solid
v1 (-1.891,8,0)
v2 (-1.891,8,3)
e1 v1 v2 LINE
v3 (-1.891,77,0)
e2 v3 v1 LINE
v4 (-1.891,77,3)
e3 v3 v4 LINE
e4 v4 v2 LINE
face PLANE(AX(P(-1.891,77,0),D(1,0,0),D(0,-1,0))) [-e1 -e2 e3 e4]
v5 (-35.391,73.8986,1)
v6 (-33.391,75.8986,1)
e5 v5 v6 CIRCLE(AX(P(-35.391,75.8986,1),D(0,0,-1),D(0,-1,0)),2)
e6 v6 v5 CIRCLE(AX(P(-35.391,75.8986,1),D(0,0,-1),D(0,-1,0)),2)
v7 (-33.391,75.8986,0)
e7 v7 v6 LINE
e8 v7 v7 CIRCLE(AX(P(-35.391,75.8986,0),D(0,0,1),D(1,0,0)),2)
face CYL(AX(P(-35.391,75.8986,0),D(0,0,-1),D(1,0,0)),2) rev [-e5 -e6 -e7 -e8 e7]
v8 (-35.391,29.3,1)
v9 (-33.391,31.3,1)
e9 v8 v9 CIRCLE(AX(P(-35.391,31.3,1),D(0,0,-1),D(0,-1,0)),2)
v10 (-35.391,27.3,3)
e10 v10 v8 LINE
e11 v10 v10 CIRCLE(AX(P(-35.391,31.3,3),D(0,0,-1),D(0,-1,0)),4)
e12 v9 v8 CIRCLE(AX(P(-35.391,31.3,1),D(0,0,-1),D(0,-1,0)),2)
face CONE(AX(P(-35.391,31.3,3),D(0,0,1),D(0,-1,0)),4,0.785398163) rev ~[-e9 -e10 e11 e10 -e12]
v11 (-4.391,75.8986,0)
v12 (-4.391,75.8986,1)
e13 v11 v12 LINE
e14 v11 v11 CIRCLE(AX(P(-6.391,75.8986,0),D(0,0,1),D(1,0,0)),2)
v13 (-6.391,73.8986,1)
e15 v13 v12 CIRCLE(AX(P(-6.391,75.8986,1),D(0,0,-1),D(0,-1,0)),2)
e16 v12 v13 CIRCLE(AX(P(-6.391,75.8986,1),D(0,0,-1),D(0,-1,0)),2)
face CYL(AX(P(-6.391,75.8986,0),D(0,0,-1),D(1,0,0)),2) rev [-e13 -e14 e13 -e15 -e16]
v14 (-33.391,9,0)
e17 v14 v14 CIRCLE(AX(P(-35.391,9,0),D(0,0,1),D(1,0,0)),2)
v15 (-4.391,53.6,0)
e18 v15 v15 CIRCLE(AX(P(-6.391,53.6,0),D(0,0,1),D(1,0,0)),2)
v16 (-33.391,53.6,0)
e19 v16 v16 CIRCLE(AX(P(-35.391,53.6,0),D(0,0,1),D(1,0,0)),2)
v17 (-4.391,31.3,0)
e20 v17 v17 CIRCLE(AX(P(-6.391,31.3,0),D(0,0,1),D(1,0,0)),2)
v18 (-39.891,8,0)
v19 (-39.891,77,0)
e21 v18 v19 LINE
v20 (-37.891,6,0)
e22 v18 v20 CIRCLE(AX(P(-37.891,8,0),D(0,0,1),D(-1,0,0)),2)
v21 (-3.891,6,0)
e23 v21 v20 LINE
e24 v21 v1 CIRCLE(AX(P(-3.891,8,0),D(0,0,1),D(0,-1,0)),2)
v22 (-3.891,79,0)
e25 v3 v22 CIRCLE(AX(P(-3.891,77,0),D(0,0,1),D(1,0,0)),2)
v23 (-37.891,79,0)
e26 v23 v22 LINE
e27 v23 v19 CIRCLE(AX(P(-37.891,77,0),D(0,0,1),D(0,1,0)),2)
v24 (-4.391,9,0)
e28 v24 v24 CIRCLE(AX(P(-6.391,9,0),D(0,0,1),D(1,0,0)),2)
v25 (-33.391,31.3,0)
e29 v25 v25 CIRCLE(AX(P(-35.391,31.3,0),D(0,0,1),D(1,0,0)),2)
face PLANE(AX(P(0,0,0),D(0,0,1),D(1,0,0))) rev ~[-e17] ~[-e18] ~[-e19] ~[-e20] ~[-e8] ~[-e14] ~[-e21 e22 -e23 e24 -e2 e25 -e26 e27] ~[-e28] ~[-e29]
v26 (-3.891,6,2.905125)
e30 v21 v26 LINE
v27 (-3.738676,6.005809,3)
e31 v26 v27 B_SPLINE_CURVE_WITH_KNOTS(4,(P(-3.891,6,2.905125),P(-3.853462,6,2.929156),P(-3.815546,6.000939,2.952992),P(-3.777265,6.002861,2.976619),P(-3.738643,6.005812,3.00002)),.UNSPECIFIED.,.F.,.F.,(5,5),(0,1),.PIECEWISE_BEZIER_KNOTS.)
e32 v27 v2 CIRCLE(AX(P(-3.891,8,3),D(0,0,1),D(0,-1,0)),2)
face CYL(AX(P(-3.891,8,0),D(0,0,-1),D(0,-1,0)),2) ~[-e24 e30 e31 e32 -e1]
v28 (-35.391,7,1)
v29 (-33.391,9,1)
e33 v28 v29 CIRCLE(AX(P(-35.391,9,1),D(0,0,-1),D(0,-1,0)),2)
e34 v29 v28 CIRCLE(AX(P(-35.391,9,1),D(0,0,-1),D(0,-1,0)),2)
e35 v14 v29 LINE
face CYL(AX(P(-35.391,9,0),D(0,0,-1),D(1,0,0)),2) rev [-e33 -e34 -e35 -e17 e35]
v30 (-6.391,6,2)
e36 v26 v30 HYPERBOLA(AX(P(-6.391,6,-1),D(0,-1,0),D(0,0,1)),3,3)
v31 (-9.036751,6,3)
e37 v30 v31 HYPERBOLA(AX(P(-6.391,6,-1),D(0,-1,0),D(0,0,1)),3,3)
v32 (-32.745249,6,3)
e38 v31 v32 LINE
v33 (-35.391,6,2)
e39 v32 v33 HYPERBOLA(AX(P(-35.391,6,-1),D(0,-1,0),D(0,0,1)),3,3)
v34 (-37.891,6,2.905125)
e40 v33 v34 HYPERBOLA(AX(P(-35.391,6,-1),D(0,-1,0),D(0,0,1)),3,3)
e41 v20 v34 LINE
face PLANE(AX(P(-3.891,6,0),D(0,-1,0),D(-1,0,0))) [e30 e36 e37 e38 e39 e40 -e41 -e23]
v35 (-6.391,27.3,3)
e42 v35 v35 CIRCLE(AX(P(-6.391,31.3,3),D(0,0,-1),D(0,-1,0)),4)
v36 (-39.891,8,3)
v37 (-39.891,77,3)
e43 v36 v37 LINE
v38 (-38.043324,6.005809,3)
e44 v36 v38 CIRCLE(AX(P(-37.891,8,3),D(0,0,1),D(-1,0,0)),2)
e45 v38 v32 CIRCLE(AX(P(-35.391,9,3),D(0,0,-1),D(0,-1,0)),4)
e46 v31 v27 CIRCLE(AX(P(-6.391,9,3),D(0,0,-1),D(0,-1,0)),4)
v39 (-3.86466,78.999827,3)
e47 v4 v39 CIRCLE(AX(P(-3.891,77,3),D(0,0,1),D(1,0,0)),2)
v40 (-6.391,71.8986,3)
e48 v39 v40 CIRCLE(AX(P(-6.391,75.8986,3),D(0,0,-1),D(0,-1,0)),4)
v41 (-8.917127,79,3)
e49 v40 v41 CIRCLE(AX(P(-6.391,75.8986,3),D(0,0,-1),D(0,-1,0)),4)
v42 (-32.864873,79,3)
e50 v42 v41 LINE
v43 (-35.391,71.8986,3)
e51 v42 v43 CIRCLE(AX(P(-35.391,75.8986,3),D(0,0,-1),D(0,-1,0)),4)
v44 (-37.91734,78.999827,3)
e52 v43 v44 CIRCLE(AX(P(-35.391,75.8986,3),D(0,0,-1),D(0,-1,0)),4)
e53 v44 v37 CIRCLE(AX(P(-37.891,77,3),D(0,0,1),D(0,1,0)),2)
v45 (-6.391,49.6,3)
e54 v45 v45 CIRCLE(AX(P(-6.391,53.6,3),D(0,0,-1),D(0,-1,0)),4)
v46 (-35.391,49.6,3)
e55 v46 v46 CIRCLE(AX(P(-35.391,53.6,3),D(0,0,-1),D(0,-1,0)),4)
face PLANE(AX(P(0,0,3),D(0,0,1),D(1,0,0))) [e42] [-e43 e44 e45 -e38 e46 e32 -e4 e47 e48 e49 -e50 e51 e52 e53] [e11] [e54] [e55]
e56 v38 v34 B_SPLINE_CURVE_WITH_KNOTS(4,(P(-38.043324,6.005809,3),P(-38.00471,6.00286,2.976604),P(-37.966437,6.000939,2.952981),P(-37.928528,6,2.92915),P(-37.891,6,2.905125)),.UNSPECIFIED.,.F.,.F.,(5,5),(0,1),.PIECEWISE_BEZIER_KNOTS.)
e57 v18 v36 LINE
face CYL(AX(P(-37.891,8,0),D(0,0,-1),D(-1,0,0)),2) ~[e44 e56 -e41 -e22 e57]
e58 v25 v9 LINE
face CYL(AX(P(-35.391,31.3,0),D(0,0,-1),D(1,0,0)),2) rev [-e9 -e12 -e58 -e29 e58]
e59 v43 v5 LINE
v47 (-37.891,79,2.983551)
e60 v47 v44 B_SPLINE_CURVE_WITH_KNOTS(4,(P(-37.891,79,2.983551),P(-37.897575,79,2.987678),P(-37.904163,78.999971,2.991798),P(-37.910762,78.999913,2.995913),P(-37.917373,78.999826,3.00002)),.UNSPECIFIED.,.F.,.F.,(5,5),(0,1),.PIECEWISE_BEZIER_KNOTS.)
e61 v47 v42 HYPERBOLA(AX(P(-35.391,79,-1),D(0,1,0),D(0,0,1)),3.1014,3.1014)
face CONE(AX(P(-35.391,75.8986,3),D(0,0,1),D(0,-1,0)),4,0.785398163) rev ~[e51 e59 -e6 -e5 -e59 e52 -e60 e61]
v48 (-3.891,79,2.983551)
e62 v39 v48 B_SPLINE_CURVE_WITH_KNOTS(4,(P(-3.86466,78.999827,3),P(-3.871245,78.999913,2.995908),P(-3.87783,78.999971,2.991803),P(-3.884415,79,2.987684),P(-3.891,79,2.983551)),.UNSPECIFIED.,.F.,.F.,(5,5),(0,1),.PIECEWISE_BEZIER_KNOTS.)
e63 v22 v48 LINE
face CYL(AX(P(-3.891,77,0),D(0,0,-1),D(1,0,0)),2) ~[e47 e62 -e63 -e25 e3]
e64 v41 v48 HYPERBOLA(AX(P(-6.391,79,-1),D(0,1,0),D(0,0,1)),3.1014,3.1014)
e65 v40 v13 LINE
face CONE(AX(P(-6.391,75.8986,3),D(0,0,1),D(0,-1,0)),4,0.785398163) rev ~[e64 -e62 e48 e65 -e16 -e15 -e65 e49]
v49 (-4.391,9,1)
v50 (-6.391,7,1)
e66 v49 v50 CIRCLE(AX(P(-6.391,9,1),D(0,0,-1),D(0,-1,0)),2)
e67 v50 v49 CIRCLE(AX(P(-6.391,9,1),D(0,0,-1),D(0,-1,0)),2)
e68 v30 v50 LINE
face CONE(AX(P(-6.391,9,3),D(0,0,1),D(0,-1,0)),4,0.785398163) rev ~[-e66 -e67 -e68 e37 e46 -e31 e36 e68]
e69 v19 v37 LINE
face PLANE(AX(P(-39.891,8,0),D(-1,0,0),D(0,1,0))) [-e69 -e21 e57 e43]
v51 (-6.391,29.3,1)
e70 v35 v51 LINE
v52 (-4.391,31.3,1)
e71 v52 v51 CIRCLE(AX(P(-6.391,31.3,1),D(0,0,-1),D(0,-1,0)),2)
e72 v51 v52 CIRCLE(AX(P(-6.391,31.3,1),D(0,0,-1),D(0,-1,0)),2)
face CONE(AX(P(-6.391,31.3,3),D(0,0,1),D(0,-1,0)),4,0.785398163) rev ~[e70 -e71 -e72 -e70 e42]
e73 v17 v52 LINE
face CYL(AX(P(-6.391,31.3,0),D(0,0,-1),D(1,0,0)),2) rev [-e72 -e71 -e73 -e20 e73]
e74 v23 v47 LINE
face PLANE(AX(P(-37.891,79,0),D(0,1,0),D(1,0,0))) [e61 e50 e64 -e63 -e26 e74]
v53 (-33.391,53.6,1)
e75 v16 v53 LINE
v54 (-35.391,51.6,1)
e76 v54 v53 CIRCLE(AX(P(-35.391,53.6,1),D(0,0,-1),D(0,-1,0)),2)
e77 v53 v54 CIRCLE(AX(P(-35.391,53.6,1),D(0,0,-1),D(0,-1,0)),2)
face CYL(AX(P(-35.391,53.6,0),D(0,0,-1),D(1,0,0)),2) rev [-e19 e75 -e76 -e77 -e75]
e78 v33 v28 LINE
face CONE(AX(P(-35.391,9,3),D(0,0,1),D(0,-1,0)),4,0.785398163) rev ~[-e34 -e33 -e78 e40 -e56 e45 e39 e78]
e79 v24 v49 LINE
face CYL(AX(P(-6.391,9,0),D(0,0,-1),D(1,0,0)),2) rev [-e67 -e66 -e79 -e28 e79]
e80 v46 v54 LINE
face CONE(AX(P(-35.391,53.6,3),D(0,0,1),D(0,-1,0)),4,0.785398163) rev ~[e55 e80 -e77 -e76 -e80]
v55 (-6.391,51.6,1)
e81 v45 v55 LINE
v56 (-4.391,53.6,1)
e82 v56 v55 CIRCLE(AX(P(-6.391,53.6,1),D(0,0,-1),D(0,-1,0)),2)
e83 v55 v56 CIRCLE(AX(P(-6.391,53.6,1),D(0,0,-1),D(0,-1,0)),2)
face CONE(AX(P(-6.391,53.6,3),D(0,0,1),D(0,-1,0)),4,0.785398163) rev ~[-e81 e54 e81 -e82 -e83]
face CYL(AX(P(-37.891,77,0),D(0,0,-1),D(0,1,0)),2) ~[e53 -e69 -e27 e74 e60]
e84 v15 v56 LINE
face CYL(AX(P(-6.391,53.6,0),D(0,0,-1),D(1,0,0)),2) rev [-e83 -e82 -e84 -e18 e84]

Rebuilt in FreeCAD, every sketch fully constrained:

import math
import FreeCAD as App
import Part
import Sketcher
from FreeCAD import Vector
Q = App.Units.Quantity

doc = App.newDocument("Part")
body = doc.addObject("PartDesign::Body", "Body")

# Sketch on XY plane
sketch1 = body.newObject("Sketcher::SketchObject", "Sketch")
sketch1.AttachmentSupport = (doc.getObject("XY_Plane"), [""])
sketch1.MapMode = "FlatFace"
sketch1.addGeometry([
    Part.LineSegment(Vector(-39.891, 77, 0), Vector(-39.891, 8, 0)),  # 0
    Part.ArcOfCircle(Part.Circle(Vector(-37.891, 8, 0), Vector(0, 0, 1), 2), math.radians(180), math.radians(270)),  # 1
    Part.LineSegment(Vector(-37.891, 6, 0), Vector(-3.891, 6, 0)),  # 2
    Part.ArcOfCircle(Part.Circle(Vector(-3.891, 8, 0), Vector(0, 0, 1), 2), math.radians(-90), math.radians(0)),  # 3
    Part.LineSegment(Vector(-1.891, 8, 0), Vector(-1.891, 77, 0)),  # 4
    Part.ArcOfCircle(Part.Circle(Vector(-3.891, 77, 0), Vector(0, 0, 1), 2), math.radians(0), math.radians(90)),  # 5
    Part.LineSegment(Vector(-3.891, 79, 0), Vector(-37.891, 79, 0)),  # 6
    Part.ArcOfCircle(Part.Circle(Vector(-37.891, 77, 0), Vector(0, 0, 1), 2), math.radians(90), math.radians(180)),  # 7
    Part.Circle(Vector(-35.391, 9, 0), Vector(0, 0, 1), 2),  # 8
    Part.Circle(Vector(-35.391, 31.3, 0), Vector(0, 0, 1), 2),  # 9
    Part.Circle(Vector(-6.391, 9, 0), Vector(0, 0, 1), 2),  # 10
    Part.Circle(Vector(-6.391, 31.3, 0), Vector(0, 0, 1), 2),  # 11
    Part.Circle(Vector(-35.391, 53.6, 0), Vector(0, 0, 1), 2),  # 12
    Part.Circle(Vector(-35.391, 75.8986, 0), Vector(0, 0, 1), 2),  # 13
    Part.Circle(Vector(-6.391, 53.6, 0), Vector(0, 0, 1), 2),  # 14
    Part.Circle(Vector(-6.391, 75.8986, 0), Vector(0, 0, 1), 2),  # 15
], False)
sketch1.addConstraint([
    Sketcher.Constraint("Tangent", 0, 2, 1, 1),
    Sketcher.Constraint("Tangent", 1, 2, 2, 1),
    Sketcher.Constraint("Tangent", 2, 2, 3, 1),
    Sketcher.Constraint("Tangent", 3, 2, 4, 1),
    Sketcher.Constraint("Tangent", 4, 2, 5, 1),
    Sketcher.Constraint("Tangent", 5, 2, 6, 1),
    Sketcher.Constraint("Tangent", 6, 2, 7, 1),
    Sketcher.Constraint("Tangent", 7, 2, 0, 1),
    Sketcher.Constraint("Vertical", 0),
    Sketcher.Constraint("Horizontal", 2),
    Sketcher.Constraint("Vertical", 4),
    Sketcher.Constraint("Horizontal", 6),
    Sketcher.Constraint("Equal", 1, 3),
    Sketcher.Constraint("Equal", 3, 5),
    Sketcher.Constraint("Equal", 5, 7),
    Sketcher.Constraint("Equal", 7, 8),
    Sketcher.Constraint("Equal", 8, 9),
    Sketcher.Constraint("Equal", 9, 10),
    Sketcher.Constraint("Equal", 10, 11),
    Sketcher.Constraint("Equal", 11, 12),
    Sketcher.Constraint("Equal", 12, 13),
    Sketcher.Constraint("Equal", 13, 14),
    Sketcher.Constraint("Equal", 14, 15),
    Sketcher.Constraint("Horizontal", 8, 3, 10, 3),
    Sketcher.Constraint("Horizontal", 9, 3, 11, 3),
    Sketcher.Constraint("Horizontal", 12, 3, 14, 3),
    Sketcher.Constraint("Horizontal", 13, 3, 15, 3),
    Sketcher.Constraint("Vertical", 8, 3, 9, 3),
    Sketcher.Constraint("Vertical", 10, 3, 11, 3),
    Sketcher.Constraint("Vertical", 9, 3, 12, 3),
    Sketcher.Constraint("Vertical", 12, 3, 13, 3),
    Sketcher.Constraint("Vertical", 11, 3, 14, 3),
    Sketcher.Constraint("Vertical", 14, 3, 15, 3),
    Sketcher.Constraint("Diameter", 8, Q("4 mm")),
    Sketcher.Constraint("DistanceX", 2, 1, 2, 2, Q("34 mm")),
    Sketcher.Constraint("DistanceY", 0, 2, 0, 1, Q("69 mm")),
    Sketcher.Constraint("DistanceY", -1, 1, 1, 3, Q("8 mm")),
    Sketcher.Constraint("DistanceY", -1, 1, 8, 3, Q("9 mm")),
    Sketcher.Constraint("DistanceX", 8, 3, 10, 3, Q("29 mm")),
    Sketcher.Constraint("DistanceY", -1, 1, 9, 3, Q("31.3 mm")),
    Sketcher.Constraint("DistanceY", -1, 1, 12, 3, Q("53.6 mm")),
    Sketcher.Constraint("DistanceX", 1, 3, 8, 3, Q("2.5 mm")),
    Sketcher.Constraint("DistanceX", 1, 3, -1, 1, Q("37.891 mm")),
    Sketcher.Constraint("DistanceY", -1, 1, 13, 3, Q("75.8986 mm")),
])
pad1 = body.newObject("PartDesign::Pad", "Pad")
pad1.Profile = sketch1
pad1.Length = 3

# Sketch on XY plane
sketch2 = body.newObject("Sketcher::SketchObject", "Sketch001")
sketch2.AttachmentSupport = (doc.getObject("XY_Plane"), [""])
sketch2.MapMode = "FlatFace"
sketch2.AttachmentOffset = App.Placement(Vector(0, 0, 3), App.Rotation())
sketch2.addGeometry([
    Part.Circle(Vector(-35.391, 75.8986, 0), Vector(0, 0, 1), 2),  # 0
    Part.Circle(Vector(-6.391, 75.8986, 0), Vector(0, 0, 1), 2),  # 1
    Part.Circle(Vector(-6.391, 53.6, 0), Vector(0, 0, 1), 2),  # 2
    Part.Circle(Vector(-35.391, 53.6, 0), Vector(0, 0, 1), 2),  # 3
    Part.Circle(Vector(-35.391, 31.3, 0), Vector(0, 0, 1), 2),  # 4
    Part.Circle(Vector(-6.391, 31.3, 0), Vector(0, 0, 1), 2),  # 5
    Part.Circle(Vector(-35.391, 9, 0), Vector(0, 0, 1), 2),  # 6
    Part.Circle(Vector(-6.391, 9, 0), Vector(0, 0, 1), 2),  # 7
], False)
sketch2.addConstraint([
    Sketcher.Constraint("Equal", 0, 1),
    Sketcher.Constraint("Equal", 1, 2),
    Sketcher.Constraint("Equal", 2, 3),
    Sketcher.Constraint("Equal", 3, 4),
    Sketcher.Constraint("Equal", 4, 5),
    Sketcher.Constraint("Equal", 5, 6),
    Sketcher.Constraint("Equal", 6, 7),
    Sketcher.Constraint("Horizontal", 0, 3, 1, 3),
    Sketcher.Constraint("Horizontal", 2, 3, 3, 3),
    Sketcher.Constraint("Horizontal", 4, 3, 5, 3),
    Sketcher.Constraint("Horizontal", 6, 3, 7, 3),
    Sketcher.Constraint("Vertical", 1, 3, 2, 3),
    Sketcher.Constraint("Vertical", 0, 3, 3, 3),
    Sketcher.Constraint("Vertical", 3, 3, 4, 3),
    Sketcher.Constraint("Vertical", 2, 3, 5, 3),
    Sketcher.Constraint("Vertical", 4, 3, 6, 3),
    Sketcher.Constraint("Vertical", 5, 3, 7, 3),
    Sketcher.Constraint("Diameter", 0, Q("4 mm")),
    Sketcher.Constraint("DistanceY", -1, 1, 6, 3, Q("9 mm")),
    Sketcher.Constraint("DistanceX", 0, 3, 1, 3, Q("29 mm")),
    Sketcher.Constraint("DistanceY", -1, 1, 2, 3, Q("53.6 mm")),
    Sketcher.Constraint("DistanceY", -1, 1, 4, 3, Q("31.3 mm")),
    Sketcher.Constraint("DistanceX", 0, 3, -1, 1, Q("35.391 mm")),
    Sketcher.Constraint("DistanceY", -1, 1, 0, 3, Q("75.8986 mm")),
])
doc.recompute()
hole = body.newObject("PartDesign::Hole", "Hole")
hole.Profile = sketch2
hole.ThreadType = "None"
hole.Diameter = 4
hole.DepthType = "ThroughAll"
hole.HoleCutType = "Countersink"
hole.HoleCutDiameter = 8
hole.HoleCutCountersinkAngle = 90

doc.recompute()
